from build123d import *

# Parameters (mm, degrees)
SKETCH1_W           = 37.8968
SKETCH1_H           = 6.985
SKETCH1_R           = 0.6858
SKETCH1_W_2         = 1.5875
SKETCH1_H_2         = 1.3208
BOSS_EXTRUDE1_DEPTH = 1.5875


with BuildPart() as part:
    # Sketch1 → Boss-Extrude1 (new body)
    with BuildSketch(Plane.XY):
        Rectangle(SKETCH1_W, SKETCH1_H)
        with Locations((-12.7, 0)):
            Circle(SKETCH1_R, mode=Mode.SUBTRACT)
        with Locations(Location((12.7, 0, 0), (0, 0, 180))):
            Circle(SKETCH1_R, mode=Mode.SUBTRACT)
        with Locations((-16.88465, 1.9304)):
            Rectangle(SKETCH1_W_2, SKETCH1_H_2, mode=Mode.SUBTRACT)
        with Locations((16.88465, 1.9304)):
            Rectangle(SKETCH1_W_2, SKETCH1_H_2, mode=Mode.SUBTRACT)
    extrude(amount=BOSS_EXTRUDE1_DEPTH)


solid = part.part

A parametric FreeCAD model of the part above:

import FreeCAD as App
import Part
import Sketcher

V = App.Vector
Q = App.Units.Quantity

doc = App.newDocument("Part")
params = doc.addObject("Spreadsheet::Sheet", "Params")
for row, (alias, value) in enumerate([
    ("sketch1_diameter", "0.054 in"),
    ("sketch1_width", "1.492 in"),
    ("sketch1_width2", "0.0625 in"),
    ("sketch1_height", "0.275 in"),
    ("sketch1_height2", "0.052 in"),
    ("pad1_length", "0.0625 in"),
], start=1):
    params.set(f"A{row}", alias)
    params.set(f"B{row}", "=" + value)
    params.setAlias(f"B{row}", alias)

body = doc.addObject("PartDesign::Body", "Body")

sketch1 = body.newObject("Sketcher::SketchObject", "Sketch")
sketch1.AttachmentSupport = (doc.getObject("XY_Plane"), [""])
sketch1.MapMode = "FlatFace"
sketch1.addGeometry([
    Part.LineSegment(V(-18.9, 3.5, 0), V(-18.9, -3.5, 0)),
    Part.LineSegment(V(-18.9, -3.5, 0), V(18.9, -3.5, 0)),
    Part.LineSegment(V(18.9, -3.5, 0), V(18.9, 3.5, 0)),
    Part.LineSegment(V(18.9, 3.5, 0), V(-18.9, 3.5, 0)),
    Part.Circle(V(-12.7, 0, 0), V(0, 0, 1), 0.7),
    Part.Circle(V(12.7, 0, 0), V(0, 0, 1), 0.7),
    Part.LineSegment(V(-16.1, 1.3, 0), V(-17.7, 1.3, 0)),
    Part.LineSegment(V(-17.7, 1.3, 0), V(-17.7, 2.6, 0)),
    Part.LineSegment(V(-17.7, 2.6, 0), V(-16.1, 2.6, 0)),
    Part.LineSegment(V(-16.1, 2.6, 0), V(-16.1, 1.3, 0)),
    Part.LineSegment(V(17.7, 1.3, 0), V(16.1, 1.3, 0)),
    Part.LineSegment(V(16.1, 1.3, 0), V(16.1, 2.6, 0)),
    Part.LineSegment(V(16.1, 2.6, 0), V(17.7, 2.6, 0)),
    Part.LineSegment(V(17.7, 2.6, 0), V(17.7, 1.3, 0)),
], False)
sketch1.addConstraint([
    Sketcher.Constraint("Coincident", 0, 2, 1, 1),
    Sketcher.Constraint("Coincident", 1, 2, 2, 1),
    Sketcher.Constraint("Coincident", 2, 2, 3, 1),
    Sketcher.Constraint("Coincident", 3, 2, 0, 1),
    Sketcher.Constraint("Coincident", 6, 2, 7, 1),
    Sketcher.Constraint("Coincident", 7, 2, 8, 1),
    Sketcher.Constraint("Coincident", 8, 2, 9, 1),
    Sketcher.Constraint("Coincident", 9, 2, 6, 1),
    Sketcher.Constraint("Coincident", 10, 2, 11, 1),
    Sketcher.Constraint("Coincident", 11, 2, 12, 1),
    Sketcher.Constraint("Coincident", 12, 2, 13, 1),
    Sketcher.Constraint("Coincident", 13, 2, 10, 1),
    Sketcher.Constraint("Vertical", 0),
    Sketcher.Constraint("Horizontal", 1),
    Sketcher.Constraint("Vertical", 2),
    Sketcher.Constraint("Horizontal", 3),
    Sketcher.Constraint("Horizontal", 6),
    Sketcher.Constraint("Vertical", 7),
    Sketcher.Constraint("Horizontal", 8),
    Sketcher.Constraint("Vertical", 9),
    Sketcher.Constraint("Horizontal", 10),
    Sketcher.Constraint("Vertical", 11),
    Sketcher.Constraint("Horizontal", 12),
    Sketcher.Constraint("Vertical", 13),
    Sketcher.Constraint("Equal", 4, 5),
    Sketcher.Constraint("Symmetric", 4, 3, 5, 3, -1, 1),
    Sketcher.Constraint("Symmetric", 0, 2, 2, 2, -1, 1),
    Sketcher.Constraint("Symmetric", 9, 2, 10, 2, -2),
    Sketcher.Constraint("Symmetric", 7, 2, 12, 2, -2),
    Sketcher.Constraint("PointOnObject", 4, 3, -1),
    Sketcher.Constraint("Diameter", 4, Q("0.054 in")),
    Sketcher.Constraint("DistanceX", 4, 3, 5, 3, Q("1 in")),
    Sketcher.Constraint("DistanceX", 1, 1, 1, 2, Q("1.492 in")),
    Sketcher.Constraint("DistanceX", 6, 2, 6, 1, Q("0.0625 in")),
    Sketcher.Constraint("DistanceY", 0, 2, 0, 1, Q("0.275 in")),
    Sketcher.Constraint("DistanceY", 7, 1, 7, 2, Q("0.052 in")),
    Sketcher.Constraint("DistanceY", -1, 1, 6, 2, Q("0.05 in")),
    Sketcher.Constraint("DistanceX", 3, 2, 6, 2, Q("0.05 in")),
])
sketch1.setExpression("Constraints[30]", "Params.sketch1_diameter")
sketch1.setExpression("Constraints[32]", "Params.sketch1_width")
sketch1.setExpression("Constraints[33]", "Params.sketch1_width2")
sketch1.setExpression("Constraints[34]", "Params.sketch1_height")
sketch1.setExpression("Constraints[35]", "Params.sketch1_height2")
pad1 = body.newObject("PartDesign::Pad", "Pad")
pad1.Profile = sketch1
pad1.setExpression("Length", "Params.pad1_length")

doc.recompute()
